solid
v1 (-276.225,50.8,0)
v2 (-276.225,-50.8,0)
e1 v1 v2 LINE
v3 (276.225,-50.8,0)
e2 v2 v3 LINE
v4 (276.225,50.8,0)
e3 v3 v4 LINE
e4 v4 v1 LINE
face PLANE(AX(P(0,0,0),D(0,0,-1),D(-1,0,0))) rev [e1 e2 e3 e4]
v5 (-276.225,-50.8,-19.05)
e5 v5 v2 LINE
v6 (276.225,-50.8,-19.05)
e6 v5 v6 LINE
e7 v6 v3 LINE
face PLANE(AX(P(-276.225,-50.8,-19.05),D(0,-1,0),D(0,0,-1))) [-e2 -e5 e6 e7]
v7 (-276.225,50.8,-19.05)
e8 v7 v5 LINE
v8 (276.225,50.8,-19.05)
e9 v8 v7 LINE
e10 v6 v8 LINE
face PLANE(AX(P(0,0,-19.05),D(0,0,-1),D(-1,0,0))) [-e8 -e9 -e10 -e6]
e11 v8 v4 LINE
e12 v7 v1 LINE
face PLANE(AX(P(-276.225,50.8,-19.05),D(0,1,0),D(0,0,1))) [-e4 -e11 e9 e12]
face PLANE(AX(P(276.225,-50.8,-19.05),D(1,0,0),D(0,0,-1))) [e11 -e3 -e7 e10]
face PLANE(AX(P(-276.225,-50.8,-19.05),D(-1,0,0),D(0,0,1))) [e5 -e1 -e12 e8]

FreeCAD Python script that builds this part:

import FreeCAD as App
import Part
import Sketcher
Q = App.Units.Quantity

doc = App.newDocument("Part")
body = doc.addObject("PartDesign::Body", "Body")

# Sketch on XY plane
sketch1 = body.newObject("Sketcher::SketchObject", "Sketch")
sketch1.AttachmentSupport = (doc.getObject("XY_Plane"), [""])
sketch1.MapMode = "FlatFace"
sketch1.addGeometry(Part.LineSegment(App.Vector(-276, 51, 0), App.Vector(-276, -51, 0)), False)
sketch1.addGeometry(Part.LineSegment(App.Vector(-276, -51, 0), App.Vector(276, -51, 0)), False)
sketch1.addGeometry(Part.LineSegment(App.Vector(276, -51, 0), App.Vector(276, 51, 0)), False)
sketch1.addGeometry(Part.LineSegment(App.Vector(276, 51, 0), App.Vector(-276, 51, 0)), False)
sketch1.addConstraint(Sketcher.Constraint("Coincident", 0, 2, 1, 1))
sketch1.addConstraint(Sketcher.Constraint("Coincident", 1, 2, 2, 1))
sketch1.addConstraint(Sketcher.Constraint("Coincident", 2, 2, 3, 1))
sketch1.addConstraint(Sketcher.Constraint("Coincident", 3, 2, 0, 1))
sketch1.addConstraint(Sketcher.Constraint("Vertical", 0))
sketch1.addConstraint(Sketcher.Constraint("Horizontal", 1))
sketch1.addConstraint(Sketcher.Constraint("Vertical", 2))
sketch1.addConstraint(Sketcher.Constraint("Horizontal", 3))
sketch1.addConstraint(Sketcher.Constraint("Symmetric", 0, 2, 2, 2, -1, 1))
sketch1.addConstraint(Sketcher.Constraint("DistanceY", 0, 2, 0, 1, Q("4 in")))
sketch1.addConstraint(Sketcher.Constraint("DistanceX", 1, 1, 1, 2, Q("21.75 in")))
pad1 = body.newObject("PartDesign::Pad", "Pad")
pad1.Profile = sketch1
pad1.Length = Q("0.75 in")
pad1.Reversed = True

doc.recompute()
